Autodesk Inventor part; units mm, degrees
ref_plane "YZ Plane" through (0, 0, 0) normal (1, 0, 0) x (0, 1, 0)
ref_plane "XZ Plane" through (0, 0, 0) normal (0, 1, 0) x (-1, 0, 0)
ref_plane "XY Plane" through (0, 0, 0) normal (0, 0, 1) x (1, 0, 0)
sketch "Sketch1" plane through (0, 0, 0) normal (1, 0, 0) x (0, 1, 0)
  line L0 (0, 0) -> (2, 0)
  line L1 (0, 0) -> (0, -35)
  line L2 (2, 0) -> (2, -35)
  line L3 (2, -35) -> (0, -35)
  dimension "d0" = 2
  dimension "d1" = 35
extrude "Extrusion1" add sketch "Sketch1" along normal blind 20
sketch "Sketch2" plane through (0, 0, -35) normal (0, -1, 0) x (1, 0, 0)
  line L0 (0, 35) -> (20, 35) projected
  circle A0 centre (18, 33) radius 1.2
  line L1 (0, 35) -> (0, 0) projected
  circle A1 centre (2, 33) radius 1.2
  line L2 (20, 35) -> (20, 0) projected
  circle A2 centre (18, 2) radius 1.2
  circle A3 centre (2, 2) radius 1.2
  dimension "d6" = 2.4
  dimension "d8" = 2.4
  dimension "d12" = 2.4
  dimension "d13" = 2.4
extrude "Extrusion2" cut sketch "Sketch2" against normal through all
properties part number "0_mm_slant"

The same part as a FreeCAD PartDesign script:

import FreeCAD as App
import Part
import Sketcher
from FreeCAD import Vector

doc = App.newDocument("Part")
body = doc.addObject("PartDesign::Body", "Body")

# Sketch on YZ plane
sketch1 = doc.addObject("Sketcher::SketchObject", "Sketch")
body.addObject(sketch1)
sketch1.AttachmentSupport = (doc.YZ_Plane, [""])
sketch1.MapMode = "FlatFace"
sketch1.addGeometry([
    Part.LineSegment(Vector(2, 0, 0), Vector(0, 0, 0)),
    Part.LineSegment(Vector(0, 0, 0), Vector(0, -35, 0)),
    Part.LineSegment(Vector(0, -35, 0), Vector(2, -35, 0)),
    Part.LineSegment(Vector(2, -35, 0), Vector(2, 0, 0)),
], False)
sketch1.addConstraint([
    Sketcher.Constraint("Coincident", 0, 2, 1, 1),
    Sketcher.Constraint("Coincident", 1, 2, 2, 1),
    Sketcher.Constraint("Coincident", 2, 2, 3, 1),
    Sketcher.Constraint("Coincident", 3, 2, 0, 1),
    Sketcher.Constraint("Horizontal", 0),
    Sketcher.Constraint("Vertical", 1),
    Sketcher.Constraint("Horizontal", 2),
    Sketcher.Constraint("Vertical", 3),
    Sketcher.Constraint("Coincident", 0, 2, -1, 1),
    Sketcher.Constraint("DistanceX", 0, 2, 0, 1, 2.0),
    Sketcher.Constraint("DistanceY", 1, 2, 1, 1, 35.0),
])
pad1 = doc.addObject("PartDesign::Pad", "Pad")
body.addObject(pad1)
pad1.Profile = sketch1
pad1.Length = 20

# Sketch on XZ plane
sketch2 = doc.addObject("Sketcher::SketchObject", "Sketch001")
body.addObject(sketch2)
sketch2.AttachmentSupport = (doc.XZ_Plane, [""])
sketch2.MapMode = "FlatFace"
sketch2.addGeometry([
    Part.Circle(Vector(18, -2, 0), Vector(0, 0, 1), 1.2),
    Part.Circle(Vector(2, -2, 0), Vector(0, 0, 1), 1.2),
    Part.Circle(Vector(18, -33, 0), Vector(0, 0, 1), 1.2),
    Part.Circle(Vector(2, -33, 0), Vector(0, 0, 1), 1.2),
], False)
sketch2.addConstraint([
    Sketcher.Constraint("Equal", 0, 1),
    Sketcher.Constraint("Equal", 1, 2),
    Sketcher.Constraint("Equal", 2, 3),
    Sketcher.Constraint("Horizontal", 0, 3, 1, 3),
    Sketcher.Constraint("Horizontal", 2, 3, 3, 3),
    Sketcher.Constraint("Vertical", 0, 3, 2, 3),
    Sketcher.Constraint("Vertical", 1, 3, 3, 3),
    Sketcher.Constraint("Diameter", 0, 2.4),
    Sketcher.Constraint("DistanceX", -1, 1, 0, 3, 18.0),
    Sketcher.Constraint("DistanceY", 0, 3, -1, 1, 2.0),
    Sketcher.Constraint("DistanceX", -1, 1, 1, 3, 2.0),
    Sketcher.Constraint("DistanceY", 2, 3, -1, 1, 33.0),
])
pocket1 = doc.addObject("PartDesign::Pocket", "Pocket")
body.addObject(pocket1)
pocket1.Profile = sketch2
pocket1.Type = "ThroughAll"

doc.recompute()
